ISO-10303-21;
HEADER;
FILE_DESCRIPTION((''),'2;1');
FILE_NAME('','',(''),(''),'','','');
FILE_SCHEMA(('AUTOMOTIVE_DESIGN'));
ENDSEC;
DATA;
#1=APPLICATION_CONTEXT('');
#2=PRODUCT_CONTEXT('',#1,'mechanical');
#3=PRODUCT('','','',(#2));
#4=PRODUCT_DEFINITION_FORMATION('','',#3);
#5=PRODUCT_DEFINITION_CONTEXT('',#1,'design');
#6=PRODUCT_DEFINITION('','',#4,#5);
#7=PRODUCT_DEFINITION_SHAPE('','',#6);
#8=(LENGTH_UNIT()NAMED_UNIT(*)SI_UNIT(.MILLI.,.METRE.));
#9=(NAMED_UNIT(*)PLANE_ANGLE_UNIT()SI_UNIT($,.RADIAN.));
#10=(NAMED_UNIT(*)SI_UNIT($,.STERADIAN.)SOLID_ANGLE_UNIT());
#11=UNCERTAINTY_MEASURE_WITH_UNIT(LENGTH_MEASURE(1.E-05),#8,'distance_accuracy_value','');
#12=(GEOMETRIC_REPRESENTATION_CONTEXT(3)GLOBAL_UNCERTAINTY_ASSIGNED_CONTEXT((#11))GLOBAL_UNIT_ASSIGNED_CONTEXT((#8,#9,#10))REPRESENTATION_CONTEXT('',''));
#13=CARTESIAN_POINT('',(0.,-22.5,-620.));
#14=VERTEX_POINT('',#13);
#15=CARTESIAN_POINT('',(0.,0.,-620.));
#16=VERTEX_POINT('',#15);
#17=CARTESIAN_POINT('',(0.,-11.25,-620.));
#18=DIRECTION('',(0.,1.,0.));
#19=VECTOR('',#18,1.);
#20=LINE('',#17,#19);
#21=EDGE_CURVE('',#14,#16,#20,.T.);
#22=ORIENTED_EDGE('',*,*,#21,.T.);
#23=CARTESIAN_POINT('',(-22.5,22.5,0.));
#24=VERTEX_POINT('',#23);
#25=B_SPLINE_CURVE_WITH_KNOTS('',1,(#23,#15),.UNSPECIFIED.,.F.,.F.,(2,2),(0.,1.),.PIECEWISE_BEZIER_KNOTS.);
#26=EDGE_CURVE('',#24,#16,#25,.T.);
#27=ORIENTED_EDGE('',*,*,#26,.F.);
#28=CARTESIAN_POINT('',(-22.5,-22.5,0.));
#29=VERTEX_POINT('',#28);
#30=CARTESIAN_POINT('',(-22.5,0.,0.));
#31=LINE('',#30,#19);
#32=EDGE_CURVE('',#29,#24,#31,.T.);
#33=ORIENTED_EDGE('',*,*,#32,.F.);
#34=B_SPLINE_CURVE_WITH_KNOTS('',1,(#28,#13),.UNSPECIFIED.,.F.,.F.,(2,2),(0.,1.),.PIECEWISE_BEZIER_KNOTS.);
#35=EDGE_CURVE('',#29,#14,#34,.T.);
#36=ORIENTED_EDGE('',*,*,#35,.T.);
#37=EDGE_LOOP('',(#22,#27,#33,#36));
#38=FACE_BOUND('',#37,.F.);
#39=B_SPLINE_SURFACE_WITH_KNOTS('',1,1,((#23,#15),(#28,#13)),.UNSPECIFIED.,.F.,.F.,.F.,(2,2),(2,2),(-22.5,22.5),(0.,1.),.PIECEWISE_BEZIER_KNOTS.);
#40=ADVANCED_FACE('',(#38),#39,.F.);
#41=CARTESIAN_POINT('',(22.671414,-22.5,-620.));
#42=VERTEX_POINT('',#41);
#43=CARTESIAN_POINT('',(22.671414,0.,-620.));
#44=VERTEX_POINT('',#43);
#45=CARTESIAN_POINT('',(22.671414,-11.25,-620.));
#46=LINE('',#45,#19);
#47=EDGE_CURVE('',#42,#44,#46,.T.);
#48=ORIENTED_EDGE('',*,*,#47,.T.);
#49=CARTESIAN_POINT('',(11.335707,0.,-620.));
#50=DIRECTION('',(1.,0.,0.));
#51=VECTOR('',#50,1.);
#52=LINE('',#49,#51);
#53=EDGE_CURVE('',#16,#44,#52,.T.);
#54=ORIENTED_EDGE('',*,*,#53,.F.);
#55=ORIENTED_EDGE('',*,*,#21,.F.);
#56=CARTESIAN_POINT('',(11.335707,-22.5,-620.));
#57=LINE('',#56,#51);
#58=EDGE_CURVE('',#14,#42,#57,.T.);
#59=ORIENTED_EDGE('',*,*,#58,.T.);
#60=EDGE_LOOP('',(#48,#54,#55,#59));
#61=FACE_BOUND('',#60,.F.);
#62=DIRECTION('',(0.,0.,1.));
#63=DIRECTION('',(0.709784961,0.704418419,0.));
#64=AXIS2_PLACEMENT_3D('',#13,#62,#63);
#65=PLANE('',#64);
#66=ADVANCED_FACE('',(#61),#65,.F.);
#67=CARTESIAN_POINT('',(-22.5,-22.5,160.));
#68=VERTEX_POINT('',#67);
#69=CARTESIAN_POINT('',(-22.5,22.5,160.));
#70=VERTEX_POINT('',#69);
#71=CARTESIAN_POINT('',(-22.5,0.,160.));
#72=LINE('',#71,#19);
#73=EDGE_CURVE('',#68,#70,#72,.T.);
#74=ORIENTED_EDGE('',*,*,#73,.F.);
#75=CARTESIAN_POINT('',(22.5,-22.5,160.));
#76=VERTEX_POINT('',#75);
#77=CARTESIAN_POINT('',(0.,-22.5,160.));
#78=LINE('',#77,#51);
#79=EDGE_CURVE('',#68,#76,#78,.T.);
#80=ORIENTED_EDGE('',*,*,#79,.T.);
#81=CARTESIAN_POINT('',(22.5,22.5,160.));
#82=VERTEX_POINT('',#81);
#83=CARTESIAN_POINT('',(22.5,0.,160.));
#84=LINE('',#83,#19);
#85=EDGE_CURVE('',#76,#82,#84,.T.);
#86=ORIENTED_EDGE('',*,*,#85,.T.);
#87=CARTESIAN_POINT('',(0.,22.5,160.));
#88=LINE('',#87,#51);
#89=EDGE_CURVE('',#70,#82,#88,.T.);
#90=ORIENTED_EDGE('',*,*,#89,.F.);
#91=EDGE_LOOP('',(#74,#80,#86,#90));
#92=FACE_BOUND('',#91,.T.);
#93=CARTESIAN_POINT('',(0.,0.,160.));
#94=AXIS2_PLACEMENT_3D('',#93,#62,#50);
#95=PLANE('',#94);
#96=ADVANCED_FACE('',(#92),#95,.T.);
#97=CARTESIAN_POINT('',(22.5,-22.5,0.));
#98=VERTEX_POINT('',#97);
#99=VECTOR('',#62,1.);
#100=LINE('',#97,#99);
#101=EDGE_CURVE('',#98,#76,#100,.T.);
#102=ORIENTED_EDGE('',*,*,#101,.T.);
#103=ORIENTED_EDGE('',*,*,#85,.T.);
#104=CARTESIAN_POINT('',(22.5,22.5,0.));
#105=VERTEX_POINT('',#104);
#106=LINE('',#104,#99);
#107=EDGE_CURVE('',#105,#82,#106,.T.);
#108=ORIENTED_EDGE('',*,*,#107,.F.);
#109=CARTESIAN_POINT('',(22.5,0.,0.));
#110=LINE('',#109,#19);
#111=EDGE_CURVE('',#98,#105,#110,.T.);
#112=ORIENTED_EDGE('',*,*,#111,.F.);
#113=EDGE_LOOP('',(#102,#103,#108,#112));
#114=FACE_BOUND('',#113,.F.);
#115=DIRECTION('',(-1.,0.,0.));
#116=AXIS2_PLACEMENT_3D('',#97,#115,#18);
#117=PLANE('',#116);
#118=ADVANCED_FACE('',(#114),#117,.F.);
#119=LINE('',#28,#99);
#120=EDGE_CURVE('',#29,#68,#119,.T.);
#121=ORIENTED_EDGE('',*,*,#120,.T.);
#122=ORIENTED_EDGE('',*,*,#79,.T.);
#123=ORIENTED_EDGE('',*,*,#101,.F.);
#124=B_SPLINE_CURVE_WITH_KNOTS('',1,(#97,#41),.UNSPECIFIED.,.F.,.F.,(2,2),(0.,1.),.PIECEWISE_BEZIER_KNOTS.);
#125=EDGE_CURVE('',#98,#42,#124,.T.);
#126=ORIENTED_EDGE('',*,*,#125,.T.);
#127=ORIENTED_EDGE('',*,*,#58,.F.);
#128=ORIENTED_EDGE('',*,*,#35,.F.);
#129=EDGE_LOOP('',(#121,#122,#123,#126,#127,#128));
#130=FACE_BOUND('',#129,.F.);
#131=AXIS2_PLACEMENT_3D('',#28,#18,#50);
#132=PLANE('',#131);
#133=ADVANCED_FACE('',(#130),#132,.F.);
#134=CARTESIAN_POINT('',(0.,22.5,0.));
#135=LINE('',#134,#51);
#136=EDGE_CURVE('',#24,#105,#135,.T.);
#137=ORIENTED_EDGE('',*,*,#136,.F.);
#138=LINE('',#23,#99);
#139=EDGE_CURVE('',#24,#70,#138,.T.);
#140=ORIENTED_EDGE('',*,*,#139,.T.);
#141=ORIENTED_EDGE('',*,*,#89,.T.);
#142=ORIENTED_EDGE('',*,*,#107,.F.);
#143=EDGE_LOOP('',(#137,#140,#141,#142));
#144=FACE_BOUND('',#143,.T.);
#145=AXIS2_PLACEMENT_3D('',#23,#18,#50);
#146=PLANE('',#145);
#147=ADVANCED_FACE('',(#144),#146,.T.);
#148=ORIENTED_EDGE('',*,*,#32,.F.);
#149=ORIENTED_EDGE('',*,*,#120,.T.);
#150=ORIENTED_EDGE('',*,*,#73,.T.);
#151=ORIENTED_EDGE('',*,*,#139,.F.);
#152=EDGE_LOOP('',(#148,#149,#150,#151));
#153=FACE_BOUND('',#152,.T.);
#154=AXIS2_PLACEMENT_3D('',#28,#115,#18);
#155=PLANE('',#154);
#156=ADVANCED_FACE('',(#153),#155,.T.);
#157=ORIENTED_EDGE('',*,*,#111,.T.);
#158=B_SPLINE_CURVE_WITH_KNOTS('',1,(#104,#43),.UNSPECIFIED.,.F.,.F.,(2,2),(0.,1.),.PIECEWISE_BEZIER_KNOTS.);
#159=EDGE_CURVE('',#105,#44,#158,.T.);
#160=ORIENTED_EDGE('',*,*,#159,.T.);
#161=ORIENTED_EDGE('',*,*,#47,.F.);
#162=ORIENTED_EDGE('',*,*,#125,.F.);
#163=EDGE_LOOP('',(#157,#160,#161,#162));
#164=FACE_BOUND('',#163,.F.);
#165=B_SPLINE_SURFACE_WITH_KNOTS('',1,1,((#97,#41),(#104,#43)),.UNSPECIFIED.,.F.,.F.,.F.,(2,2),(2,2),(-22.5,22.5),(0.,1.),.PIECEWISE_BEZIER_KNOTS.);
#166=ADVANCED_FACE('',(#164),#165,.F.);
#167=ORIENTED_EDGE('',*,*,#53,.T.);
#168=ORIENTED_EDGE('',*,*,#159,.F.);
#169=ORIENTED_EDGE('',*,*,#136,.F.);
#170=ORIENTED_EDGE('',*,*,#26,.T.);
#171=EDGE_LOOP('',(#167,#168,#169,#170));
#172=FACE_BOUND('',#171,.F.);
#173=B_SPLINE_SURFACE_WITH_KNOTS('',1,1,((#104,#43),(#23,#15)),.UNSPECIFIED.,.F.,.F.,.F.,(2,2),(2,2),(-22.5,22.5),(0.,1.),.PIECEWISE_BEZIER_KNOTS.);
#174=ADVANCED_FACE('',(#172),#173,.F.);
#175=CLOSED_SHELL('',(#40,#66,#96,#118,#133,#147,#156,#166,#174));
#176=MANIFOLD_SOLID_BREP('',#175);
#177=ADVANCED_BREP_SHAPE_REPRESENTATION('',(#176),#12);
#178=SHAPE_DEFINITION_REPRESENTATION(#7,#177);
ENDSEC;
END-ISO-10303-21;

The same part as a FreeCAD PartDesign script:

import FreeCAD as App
import Part
import Sketcher
from FreeCAD import Vector
Q = App.Units.Quantity

doc = App.newDocument("Part")
body = doc.addObject("PartDesign::Body", "Body")

# Sketch on XY plane
sketch1 = doc.addObject("Sketcher::SketchObject", "Sketch")
body.addObject(sketch1)
sketch1.AttachmentSupport = (doc.XY_Plane, [""])
sketch1.MapMode = "FlatFace"
sketch1.addGeometry([
    Part.LineSegment(Vector(-22.5, 22.5, 0), Vector(-22.5, -22.5, 0)),
    Part.LineSegment(Vector(-22.5, -22.5, 0), Vector(22.5, -22.5, 0)),
    Part.LineSegment(Vector(22.5, -22.5, 0), Vector(22.5, 22.5, 0)),
    Part.LineSegment(Vector(22.5, 22.5, 0), Vector(-22.5, 22.5, 0)),
], False)
sketch1.addConstraint([
    Sketcher.Constraint("Coincident", 0, 2, 1, 1),
    Sketcher.Constraint("Coincident", 1, 2, 2, 1),
    Sketcher.Constraint("Coincident", 2, 2, 3, 1),
    Sketcher.Constraint("Coincident", 3, 2, 0, 1),
    Sketcher.Constraint("Vertical", 0),
    Sketcher.Constraint("Horizontal", 1),
    Sketcher.Constraint("Vertical", 2),
    Sketcher.Constraint("Horizontal", 3),
    Sketcher.Constraint("Symmetric", 0, 2, 2, 2, -1, 1),
    Sketcher.Constraint("Equal", 3, 0),
    Sketcher.Constraint("DistanceX", 1, 1, 1, 2, Q("45 mm")),
])

# Sketch on XY plane
sketch2 = doc.addObject("Sketcher::SketchObject", "Sketch001")
body.addObject(sketch2)
sketch2.AttachmentSupport = (doc.XY_Plane, [""])
sketch2.MapMode = "FlatFace"
sketch2.AttachmentOffset = App.Placement(Vector(0, 0, -620), App.Rotation())
sketch2.addGeometry([
    Part.LineSegment(Vector(0, 0, 0), Vector(0, -22.5, 0)),
    Part.LineSegment(Vector(0, -22.5, 0), Vector(22.671414, -22.5, 0)),
    Part.LineSegment(Vector(22.671414, -22.5, 0), Vector(22.671414, 0, 0)),
    Part.LineSegment(Vector(22.671414, 0, 0), Vector(0, 0, 0)),
], False)
sketch2.addConstraint([
    Sketcher.Constraint("Coincident", 0, 2, 1, 1),
    Sketcher.Constraint("Coincident", 1, 2, 2, 1),
    Sketcher.Constraint("Coincident", 2, 2, 3, 1),
    Sketcher.Constraint("Coincident", 3, 2, 0, 1),
    Sketcher.Constraint("Vertical", 0),
    Sketcher.Constraint("Horizontal", 1),
    Sketcher.Constraint("Vertical", 2),
    Sketcher.Constraint("Horizontal", 3),
    Sketcher.Constraint("Coincident", 3, 2, -1, 1),
    Sketcher.Constraint("DistanceY", 0, 2, 0, 1, Q("22.5 mm")),
    Sketcher.Constraint("DistanceX", 1, 1, 1, 2, Q("22.671414 mm")),
])

additiveloft = doc.addObject("PartDesign::AdditiveLoft", "AdditiveLoft")
body.addObject(additiveloft)
additiveloft.Profile = sketch1
additiveloft.Sections = [sketch2]

# Sketch on XY plane
sketch3 = doc.addObject("Sketcher::SketchObject", "Sketch002")
body.addObject(sketch3)
sketch3.AttachmentSupport = (doc.XY_Plane, [""])
sketch3.MapMode = "FlatFace"
sketch3.addGeometry([
    Part.LineSegment(Vector(-22.5, 22.5, 0), Vector(-22.5, -22.5, 0)),
    Part.LineSegment(Vector(-22.5, -22.5, 0), Vector(22.5, -22.5, 0)),
    Part.LineSegment(Vector(22.5, -22.5, 0), Vector(22.5, 22.5, 0)),
    Part.LineSegment(Vector(22.5, 22.5, 0), Vector(-22.5, 22.5, 0)),
], False)
sketch3.addConstraint([
    Sketcher.Constraint("Coincident", 0, 2, 1, 1),
    Sketcher.Constraint("Coincident", 1, 2, 2, 1),
    Sketcher.Constraint("Coincident", 2, 2, 3, 1),
    Sketcher.Constraint("Coincident", 3, 2, 0, 1),
    Sketcher.Constraint("Vertical", 0),
    Sketcher.Constraint("Horizontal", 1),
    Sketcher.Constraint("Vertical", 2),
    Sketcher.Constraint("Horizontal", 3),
    Sketcher.Constraint("Symmetric", 0, 2, 2, 2, -1, 1),
    Sketcher.Constraint("Equal", 3, 0),
    Sketcher.Constraint("DistanceX", 1, 1, 1, 2, Q("45 mm")),
])
pad1 = doc.addObject("PartDesign::Pad", "Pad")
body.addObject(pad1)
pad1.Profile = sketch3
pad1.Length = 160

doc.recompute()
